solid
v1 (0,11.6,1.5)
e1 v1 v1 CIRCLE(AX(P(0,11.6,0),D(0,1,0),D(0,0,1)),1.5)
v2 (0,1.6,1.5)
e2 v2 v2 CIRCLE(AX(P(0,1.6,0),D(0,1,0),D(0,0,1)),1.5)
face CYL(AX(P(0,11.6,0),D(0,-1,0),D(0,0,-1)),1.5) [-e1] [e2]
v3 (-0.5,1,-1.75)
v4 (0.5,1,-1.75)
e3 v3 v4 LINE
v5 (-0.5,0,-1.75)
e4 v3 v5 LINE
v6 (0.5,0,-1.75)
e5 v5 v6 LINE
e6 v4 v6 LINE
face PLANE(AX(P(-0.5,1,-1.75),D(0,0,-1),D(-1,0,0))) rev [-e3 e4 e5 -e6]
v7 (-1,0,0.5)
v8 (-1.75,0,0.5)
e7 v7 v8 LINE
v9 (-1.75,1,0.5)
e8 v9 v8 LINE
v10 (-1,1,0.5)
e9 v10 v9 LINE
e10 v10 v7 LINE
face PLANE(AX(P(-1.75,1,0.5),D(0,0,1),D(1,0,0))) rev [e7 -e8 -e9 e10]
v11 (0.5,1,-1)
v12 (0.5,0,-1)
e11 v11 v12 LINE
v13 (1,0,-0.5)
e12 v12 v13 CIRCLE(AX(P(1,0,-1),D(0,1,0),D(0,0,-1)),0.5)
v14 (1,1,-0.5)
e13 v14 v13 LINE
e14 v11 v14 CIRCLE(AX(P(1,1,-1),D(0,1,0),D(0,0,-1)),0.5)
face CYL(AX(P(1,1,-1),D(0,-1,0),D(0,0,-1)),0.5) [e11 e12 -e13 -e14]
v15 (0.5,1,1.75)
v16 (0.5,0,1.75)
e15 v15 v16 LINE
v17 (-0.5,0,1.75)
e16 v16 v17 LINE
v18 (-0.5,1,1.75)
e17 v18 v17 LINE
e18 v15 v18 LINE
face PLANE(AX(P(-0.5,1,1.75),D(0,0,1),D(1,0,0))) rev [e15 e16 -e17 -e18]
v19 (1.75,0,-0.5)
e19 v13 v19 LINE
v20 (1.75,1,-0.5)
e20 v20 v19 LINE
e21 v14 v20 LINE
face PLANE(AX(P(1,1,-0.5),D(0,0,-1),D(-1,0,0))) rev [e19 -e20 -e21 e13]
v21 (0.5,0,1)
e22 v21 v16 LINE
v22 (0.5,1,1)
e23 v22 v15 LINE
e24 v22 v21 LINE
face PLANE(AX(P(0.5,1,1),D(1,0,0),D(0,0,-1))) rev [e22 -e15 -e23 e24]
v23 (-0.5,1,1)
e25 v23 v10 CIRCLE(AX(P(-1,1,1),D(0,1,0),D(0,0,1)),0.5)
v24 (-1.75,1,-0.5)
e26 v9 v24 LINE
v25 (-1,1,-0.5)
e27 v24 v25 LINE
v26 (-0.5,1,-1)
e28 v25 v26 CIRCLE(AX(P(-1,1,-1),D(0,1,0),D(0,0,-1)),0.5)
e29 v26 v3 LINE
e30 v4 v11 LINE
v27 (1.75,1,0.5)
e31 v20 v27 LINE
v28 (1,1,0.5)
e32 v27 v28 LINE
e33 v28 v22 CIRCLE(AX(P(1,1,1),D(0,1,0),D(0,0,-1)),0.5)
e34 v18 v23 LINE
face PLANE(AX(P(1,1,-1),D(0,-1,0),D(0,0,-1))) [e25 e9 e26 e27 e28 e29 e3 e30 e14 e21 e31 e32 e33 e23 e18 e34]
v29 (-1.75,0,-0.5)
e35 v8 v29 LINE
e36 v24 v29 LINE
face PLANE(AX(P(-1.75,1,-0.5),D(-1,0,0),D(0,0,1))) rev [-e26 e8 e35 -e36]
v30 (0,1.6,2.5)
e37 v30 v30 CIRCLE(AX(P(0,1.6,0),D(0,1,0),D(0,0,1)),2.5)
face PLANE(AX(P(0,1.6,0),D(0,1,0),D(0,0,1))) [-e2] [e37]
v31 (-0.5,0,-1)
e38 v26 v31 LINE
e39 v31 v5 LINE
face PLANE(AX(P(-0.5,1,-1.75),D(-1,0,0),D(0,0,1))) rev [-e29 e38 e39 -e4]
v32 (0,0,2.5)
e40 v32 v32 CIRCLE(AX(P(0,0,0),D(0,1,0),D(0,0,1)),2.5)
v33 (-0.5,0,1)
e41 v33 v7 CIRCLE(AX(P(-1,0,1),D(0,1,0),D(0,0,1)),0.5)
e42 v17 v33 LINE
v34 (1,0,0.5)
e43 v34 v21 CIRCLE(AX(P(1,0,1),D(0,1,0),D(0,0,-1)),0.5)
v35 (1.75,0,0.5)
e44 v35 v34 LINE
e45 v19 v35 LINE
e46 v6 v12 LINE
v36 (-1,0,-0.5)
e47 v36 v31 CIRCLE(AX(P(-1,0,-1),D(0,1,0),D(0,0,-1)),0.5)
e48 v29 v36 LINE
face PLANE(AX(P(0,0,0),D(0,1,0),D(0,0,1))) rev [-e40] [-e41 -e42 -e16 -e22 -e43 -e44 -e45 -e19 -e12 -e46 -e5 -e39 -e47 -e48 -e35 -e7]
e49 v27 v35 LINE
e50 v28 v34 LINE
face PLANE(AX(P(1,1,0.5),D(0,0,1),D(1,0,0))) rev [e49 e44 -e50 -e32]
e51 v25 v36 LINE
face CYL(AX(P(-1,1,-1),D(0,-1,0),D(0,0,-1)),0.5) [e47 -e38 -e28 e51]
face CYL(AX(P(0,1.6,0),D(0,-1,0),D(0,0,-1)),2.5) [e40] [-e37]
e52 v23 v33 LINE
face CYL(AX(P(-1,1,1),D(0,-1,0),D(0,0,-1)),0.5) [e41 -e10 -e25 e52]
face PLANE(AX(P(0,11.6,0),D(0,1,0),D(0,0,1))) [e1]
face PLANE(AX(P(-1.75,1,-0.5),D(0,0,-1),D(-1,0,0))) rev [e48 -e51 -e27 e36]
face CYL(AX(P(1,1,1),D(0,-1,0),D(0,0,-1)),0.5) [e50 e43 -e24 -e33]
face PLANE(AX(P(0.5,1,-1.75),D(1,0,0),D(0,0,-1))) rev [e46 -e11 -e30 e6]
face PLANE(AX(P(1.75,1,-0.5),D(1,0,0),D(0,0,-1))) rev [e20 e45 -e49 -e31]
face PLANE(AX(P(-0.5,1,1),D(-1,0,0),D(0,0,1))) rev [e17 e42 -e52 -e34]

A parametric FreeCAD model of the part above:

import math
import FreeCAD as App
import Part
import Sketcher
Q = App.Units.Quantity

doc = App.newDocument("Part")
body = doc.addObject("PartDesign::Body", "Body")

# Sketch on XZ plane
sketch1 = body.newObject("Sketcher::SketchObject", "Sketch")
sketch1.AttachmentSupport = (doc.getObject("XZ_Plane"), [""])
sketch1.MapMode = "FlatFace"
sketch1.addGeometry(Part.Circle(App.Vector(0, 0, 0), App.Vector(0, 0, 1), 2.5), False)
sketch1.addConstraint([
    Sketcher.Constraint("Coincident", 0, 3, -1, 1),
    Sketcher.Constraint("Diameter", 0, Q("5 mm")),
])
pad1 = body.newObject("PartDesign::Pad", "Pad")
pad1.Profile = sketch1
pad1.Length = 1.6
pad1.Reversed = True

# Sketch on XZ plane
sketch2 = body.newObject("Sketcher::SketchObject", "Sketch001")
sketch2.AttachmentSupport = (doc.getObject("XZ_Plane"), [""])
sketch2.MapMode = "FlatFace"
sketch2.AttachmentOffset = App.Placement(App.Vector(0, 0, -1.6), App.Rotation())
sketch2.addGeometry(Part.Circle(App.Vector(0, 0, 0), App.Vector(0, 0, 1), 1.5), False)
sketch2.addConstraint([
    Sketcher.Constraint("Coincident", 0, 3, -1, 1),
    Sketcher.Constraint("Diameter", 0, Q("3 mm")),
])
pad2 = body.newObject("PartDesign::Pad", "Pad001")
pad2.Profile = sketch2
pad2.Length = 10
pad2.Reversed = True

# Sketch on XZ plane
sketch3 = body.newObject("Sketcher::SketchObject", "Sketch002")
sketch3.AttachmentSupport = (doc.getObject("XZ_Plane"), [""])
sketch3.MapMode = "FlatFace"
sketch3.addGeometry([
    Part.LineSegment(App.Vector(-0.5, 1.75, 0), App.Vector(-0.5, 1, 0)),  # 0
    Part.ArcOfCircle(Part.Circle(App.Vector(-1, 1, 0), App.Vector(0, 0, 1), 0.5), math.radians(-90), math.radians(0)),  # 1
    Part.LineSegment(App.Vector(-1, 0.5, 0), App.Vector(-1.75, 0.5, 0)),  # 2
    Part.LineSegment(App.Vector(-1.75, 0.5, 0), App.Vector(-1.75, -0.5, 0)),  # 3
    Part.LineSegment(App.Vector(-1.75, -0.5, 0), App.Vector(-1, -0.5, 0)),  # 4
    Part.ArcOfCircle(Part.Circle(App.Vector(-1, -1, 0), App.Vector(0, 0, 1), 0.5), math.radians(0), math.radians(90)),  # 5
    Part.LineSegment(App.Vector(-0.5, -1, 0), App.Vector(-0.5, -1.75, 0)),  # 6
    Part.LineSegment(App.Vector(-0.5, -1.75, 0), App.Vector(0.5, -1.75, 0)),  # 7
    Part.LineSegment(App.Vector(0.5, -1.75, 0), App.Vector(0.5, -1, 0)),  # 8
    Part.ArcOfCircle(Part.Circle(App.Vector(1, -1, 0), App.Vector(0, 0, 1), 0.5), math.radians(90), math.radians(180)),  # 9
    Part.LineSegment(App.Vector(1, -0.5, 0), App.Vector(1.75, -0.5, 0)),  # 10
    Part.LineSegment(App.Vector(1.75, -0.5, 0), App.Vector(1.75, 0.5, 0)),  # 11
    Part.LineSegment(App.Vector(1.75, 0.5, 0), App.Vector(1, 0.5, 0)),  # 12
    Part.ArcOfCircle(Part.Circle(App.Vector(1, 1, 0), App.Vector(0, 0, 1), 0.5), math.radians(180), math.radians(270)),  # 13
    Part.LineSegment(App.Vector(0.5, 1, 0), App.Vector(0.5, 1.75, 0)),  # 14
    Part.LineSegment(App.Vector(0.5, 1.75, 0), App.Vector(-0.5, 1.75, 0)),  # 15
], False)
sketch3.addConstraint([
    Sketcher.Constraint("Tangent", 0, 2, 1, 2),
    Sketcher.Constraint("Tangent", 1, 1, 2, 1),
    Sketcher.Constraint("Coincident", 2, 2, 3, 1),
    Sketcher.Constraint("Coincident", 3, 2, 4, 1),
    Sketcher.Constraint("Tangent", 4, 2, 5, 2),
    Sketcher.Constraint("Tangent", 5, 1, 6, 1),
    Sketcher.Constraint("Coincident", 6, 2, 7, 1),
    Sketcher.Constraint("Coincident", 7, 2, 8, 1),
    Sketcher.Constraint("Tangent", 8, 2, 9, 2),
    Sketcher.Constraint("Tangent", 9, 1, 10, 1),
    Sketcher.Constraint("Coincident", 10, 2, 11, 1),
    Sketcher.Constraint("Coincident", 11, 2, 12, 1),
    Sketcher.Constraint("Tangent", 12, 2, 13, 2),
    Sketcher.Constraint("Tangent", 13, 1, 14, 1),
    Sketcher.Constraint("Coincident", 14, 2, 15, 1),
    Sketcher.Constraint("Coincident", 15, 2, 0, 1),
    Sketcher.Constraint("Vertical", 0),
    Sketcher.Constraint("Horizontal", 2),
    Sketcher.Constraint("Vertical", 3),
    Sketcher.Constraint("Horizontal", 4),
    Sketcher.Constraint("Vertical", 6),
    Sketcher.Constraint("Horizontal", 7),
    Sketcher.Constraint("Vertical", 8),
    Sketcher.Constraint("Horizontal", 10),
    Sketcher.Constraint("Vertical", 11),
    Sketcher.Constraint("Horizontal", 12),
    Sketcher.Constraint("Vertical", 14),
    Sketcher.Constraint("Horizontal", 15),
    Sketcher.Constraint("Equal", 1, 5),
    Sketcher.Constraint("Equal", 5, 9),
    Sketcher.Constraint("Equal", 9, 13),
    Sketcher.Constraint("Symmetric", 1, 3, 9, 3, -1, 1),
    Sketcher.Constraint("Symmetric", 5, 3, 13, 3, -1, 1),
    Sketcher.Constraint("Symmetric", 5, 3, 9, 3, -2),
    Sketcher.Constraint("Equal", 4, 10),
    Sketcher.Constraint("Equal", 12, 0),
    Sketcher.Constraint("Equal", 15, 3),
    Sketcher.Constraint("Equal", 0, 6),
    Sketcher.Constraint("Radius", 1, Q("0.5 mm")),
    Sketcher.Constraint("DistanceX", 7, 1, 7, 2, Q("1 mm")),
    Sketcher.Constraint("DistanceX", 2, 2, 2, 1, Q("0.75 mm")),
])
pocket1 = body.newObject("PartDesign::Pocket", "Pocket")
pocket1.Profile = sketch3
pocket1.Length = 1

doc.recompute()
